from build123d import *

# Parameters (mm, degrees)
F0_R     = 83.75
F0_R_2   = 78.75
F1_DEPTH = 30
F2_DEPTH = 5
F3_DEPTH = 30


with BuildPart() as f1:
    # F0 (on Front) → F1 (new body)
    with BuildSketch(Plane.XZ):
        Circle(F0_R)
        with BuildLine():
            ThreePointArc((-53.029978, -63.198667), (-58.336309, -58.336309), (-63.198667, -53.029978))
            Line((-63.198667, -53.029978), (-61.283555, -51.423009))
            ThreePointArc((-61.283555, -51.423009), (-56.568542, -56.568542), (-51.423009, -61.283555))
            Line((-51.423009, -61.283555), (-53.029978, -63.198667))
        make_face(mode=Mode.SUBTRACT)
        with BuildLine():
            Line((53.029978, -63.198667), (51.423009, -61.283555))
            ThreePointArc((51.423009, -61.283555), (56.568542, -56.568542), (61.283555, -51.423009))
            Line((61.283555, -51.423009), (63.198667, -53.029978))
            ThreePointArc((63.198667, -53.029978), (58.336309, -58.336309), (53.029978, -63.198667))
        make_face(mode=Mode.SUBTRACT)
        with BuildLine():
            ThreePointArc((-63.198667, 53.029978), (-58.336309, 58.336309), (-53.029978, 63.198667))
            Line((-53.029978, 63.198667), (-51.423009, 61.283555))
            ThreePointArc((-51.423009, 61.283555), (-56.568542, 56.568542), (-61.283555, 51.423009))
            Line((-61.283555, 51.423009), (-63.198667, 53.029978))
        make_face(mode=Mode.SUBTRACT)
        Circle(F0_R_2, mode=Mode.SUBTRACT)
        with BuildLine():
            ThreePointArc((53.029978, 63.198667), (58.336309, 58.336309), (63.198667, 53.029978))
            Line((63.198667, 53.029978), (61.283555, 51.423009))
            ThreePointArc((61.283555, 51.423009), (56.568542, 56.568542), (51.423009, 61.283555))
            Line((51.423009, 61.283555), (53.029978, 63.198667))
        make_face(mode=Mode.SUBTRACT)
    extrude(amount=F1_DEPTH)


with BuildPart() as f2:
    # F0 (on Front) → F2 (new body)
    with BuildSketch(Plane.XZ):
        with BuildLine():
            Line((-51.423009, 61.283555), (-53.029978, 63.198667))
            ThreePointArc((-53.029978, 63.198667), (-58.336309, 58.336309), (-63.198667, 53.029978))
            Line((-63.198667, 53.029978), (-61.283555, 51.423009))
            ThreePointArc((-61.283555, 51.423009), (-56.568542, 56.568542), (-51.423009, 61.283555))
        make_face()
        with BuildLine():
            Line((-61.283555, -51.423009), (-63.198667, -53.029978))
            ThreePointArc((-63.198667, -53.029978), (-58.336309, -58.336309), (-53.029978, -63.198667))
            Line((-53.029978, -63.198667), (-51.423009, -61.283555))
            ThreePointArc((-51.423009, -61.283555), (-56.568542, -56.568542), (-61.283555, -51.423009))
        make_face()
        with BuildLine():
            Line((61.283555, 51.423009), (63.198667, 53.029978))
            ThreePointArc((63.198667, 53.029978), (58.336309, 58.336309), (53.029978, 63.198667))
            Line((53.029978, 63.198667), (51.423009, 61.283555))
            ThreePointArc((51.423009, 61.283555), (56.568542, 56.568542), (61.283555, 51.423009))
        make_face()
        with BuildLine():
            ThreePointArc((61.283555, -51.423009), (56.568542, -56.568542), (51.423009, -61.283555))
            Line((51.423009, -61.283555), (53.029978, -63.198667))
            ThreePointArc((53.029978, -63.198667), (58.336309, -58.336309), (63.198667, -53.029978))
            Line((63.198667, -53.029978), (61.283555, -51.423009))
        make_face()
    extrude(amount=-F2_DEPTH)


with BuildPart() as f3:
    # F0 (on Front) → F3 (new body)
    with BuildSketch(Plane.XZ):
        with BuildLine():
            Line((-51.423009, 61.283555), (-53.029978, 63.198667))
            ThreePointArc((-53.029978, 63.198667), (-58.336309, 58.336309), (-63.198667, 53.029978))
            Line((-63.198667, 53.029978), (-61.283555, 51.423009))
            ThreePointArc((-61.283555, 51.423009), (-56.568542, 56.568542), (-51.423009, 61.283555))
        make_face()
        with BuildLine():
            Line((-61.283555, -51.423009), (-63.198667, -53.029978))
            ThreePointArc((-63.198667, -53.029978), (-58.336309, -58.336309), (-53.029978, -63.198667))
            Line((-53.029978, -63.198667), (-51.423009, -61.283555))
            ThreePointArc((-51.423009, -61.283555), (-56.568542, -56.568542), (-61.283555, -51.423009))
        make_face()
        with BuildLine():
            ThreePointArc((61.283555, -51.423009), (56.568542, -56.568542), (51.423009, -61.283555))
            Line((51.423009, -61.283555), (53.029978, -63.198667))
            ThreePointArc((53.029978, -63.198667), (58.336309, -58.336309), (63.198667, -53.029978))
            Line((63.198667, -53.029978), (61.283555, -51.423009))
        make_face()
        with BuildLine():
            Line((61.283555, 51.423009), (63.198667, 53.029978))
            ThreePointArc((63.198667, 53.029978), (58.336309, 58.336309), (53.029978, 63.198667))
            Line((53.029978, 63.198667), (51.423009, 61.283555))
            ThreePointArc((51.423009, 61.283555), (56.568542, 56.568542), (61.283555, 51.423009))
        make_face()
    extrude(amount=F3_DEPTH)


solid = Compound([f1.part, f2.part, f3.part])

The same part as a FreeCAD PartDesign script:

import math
import FreeCAD as App
import Part
import Sketcher

V = App.Vector
Q = App.Units.Quantity

doc = App.newDocument("Part")
params = doc.addObject("Spreadsheet::Sheet", "Params")
for row, (alias, value) in enumerate([
    ("sketch1_diameter", "167.5 mm"),
    ("sketch1_diameter2", "157.5 mm"),
    ("sketch1_length", "2.500001 mm"),
    ("pad1_length", "30 mm"),
    ("sketch2_length", "2.500001 mm"),
    ("pad2_length", "5 mm"),
    ("sketch3_length", "2.500001 mm"),
    ("pad3_length", "30 mm"),
], start=1):
    params.set(f"A{row}", alias)
    params.set(f"B{row}", "=" + value)
    params.setAlias(f"B{row}", alias)

body = doc.addObject("PartDesign::Body", "Body")

# Sketch on XZ plane
sketch1 = body.newObject("Sketcher::SketchObject", "Sketch")
sketch1.AttachmentSupport = (doc.getObject("XZ_Plane"), [""])
sketch1.MapMode = "FlatFace"
sketch1.addGeometry(Part.Circle(V(0, 0, 0), V(0, 0, 1), 83.75), False)
sketch1.addGeometry(Part.LineSegment(V(-51.423009, -61.283555, 0), V(-53.029978, -63.198667, 0)), False)
sketch1.addGeometry(Part.ArcOfCircle(Part.Circle(V(0.000205, 0.000205, 0), V(0, 0, 1), 82.500289), math.radians(-139.999983), math.radians(-130.000017)), False)
sketch1.addGeometry(Part.LineSegment(V(-63.198667, -53.029978, 0), V(-61.283555, -51.423009, 0)), False)
sketch1.addGeometry(Part.ArcOfCircle(Part.Circle(V(0.000093, 0.000093, 0), V(0, 0, 1), 80.000131), math.radians(-139.999991), math.radians(-130.000009)), False)
sketch1.addGeometry(Part.ArcOfCircle(Part.Circle(V(-0.000205, 0.000205, 0), V(0, 0, 1), 82.500289), math.radians(-49.999983), math.radians(-40.000017)), False)
sketch1.addGeometry(Part.LineSegment(V(53.029978, -63.198667, 0), V(51.423009, -61.283555, 0)), False)
sketch1.addGeometry(Part.ArcOfCircle(Part.Circle(V(-0.000093, 0.000093, 0), V(0, 0, 1), 80.000131), math.radians(-49.999991), math.radians(-40.000009)), False)
sketch1.addGeometry(Part.LineSegment(V(61.283555, -51.423009, 0), V(63.198667, -53.029978, 0)), False)
sketch1.addGeometry(Part.LineSegment(V(-61.283555, 51.423009, 0), V(-63.198667, 53.029978, 0)), False)
sketch1.addGeometry(Part.ArcOfCircle(Part.Circle(V(0.000205, -0.000205, 0), V(0, 0, 1), 82.500289), math.radians(130.000017), math.radians(139.999983)), False)
sketch1.addGeometry(Part.LineSegment(V(-53.029978, 63.198667, 0), V(-51.423009, 61.283555, 0)), False)
sketch1.addGeometry(Part.ArcOfCircle(Part.Circle(V(0.000093, -0.000093, 0), V(0, 0, 1), 80.000131), math.radians(130.000009), math.radians(139.999991)), False)
sketch1.addGeometry(Part.Circle(V(0, 0, 0), V(0, 0, 1), 78.75), False)
sketch1.addGeometry(Part.LineSegment(V(51.423009, 61.283555, 0), V(53.029978, 63.198667, 0)), False)
sketch1.addGeometry(Part.ArcOfCircle(Part.Circle(V(-0.000205, -0.000205, 0), V(0, 0, 1), 82.500289), math.radians(40.000017), math.radians(49.999983)), False)
sketch1.addGeometry(Part.LineSegment(V(63.198667, 53.029978, 0), V(61.283555, 51.423009, 0)), False)
sketch1.addGeometry(Part.ArcOfCircle(Part.Circle(V(-0.000093, -0.000093, 0), V(0, 0, 1), 80.000131), math.radians(40.000009), math.radians(49.999991)), False)
sketch1.addConstraint(Sketcher.Constraint("Coincident", 1, 2, 2, 2))
sketch1.addConstraint(Sketcher.Constraint("Coincident", 2, 1, 3, 1))
sketch1.addConstraint(Sketcher.Constraint("Coincident", 3, 2, 4, 1))
sketch1.addConstraint(Sketcher.Constraint("Coincident", 4, 2, 1, 1))
sketch1.addConstraint(Sketcher.Constraint("Coincident", 5, 1, 6, 1))
sketch1.addConstraint(Sketcher.Constraint("Coincident", 6, 2, 7, 1))
sketch1.addConstraint(Sketcher.Constraint("Coincident", 7, 2, 8, 1))
sketch1.addConstraint(Sketcher.Constraint("Coincident", 8, 2, 5, 2))
sketch1.addConstraint(Sketcher.Constraint("Coincident", 9, 2, 10, 2))
sketch1.addConstraint(Sketcher.Constraint("Coincident", 10, 1, 11, 1))
sketch1.addConstraint(Sketcher.Constraint("Coincident", 11, 2, 12, 1))
sketch1.addConstraint(Sketcher.Constraint("Coincident", 12, 2, 9, 1))
sketch1.addConstraint(Sketcher.Constraint("Coincident", 14, 2, 15, 2))
sketch1.addConstraint(Sketcher.Constraint("Coincident", 15, 1, 16, 1))
sketch1.addConstraint(Sketcher.Constraint("Coincident", 16, 2, 17, 1))
sketch1.addConstraint(Sketcher.Constraint("Coincident", 17, 2, 14, 1))
sketch1.addConstraint(Sketcher.Constraint("Coincident", 0, 3, -1, 1))
sketch1.addConstraint(Sketcher.Constraint("Coincident", 13, 3, -1, 1))
sketch1.addConstraint(Sketcher.Constraint("Equal", 2, 5))
sketch1.addConstraint(Sketcher.Constraint("Equal", 4, 7))
sketch1.addConstraint(Sketcher.Constraint("Equal", 5, 10))
sketch1.addConstraint(Sketcher.Constraint("Equal", 7, 12))
sketch1.addConstraint(Sketcher.Constraint("Equal", 10, 15))
sketch1.addConstraint(Sketcher.Constraint("Equal", 12, 17))
sketch1.addConstraint(Sketcher.Constraint("Symmetric", 5, 3, 10, 3, -1, 1))
sketch1.addConstraint(Sketcher.Constraint("Symmetric", 7, 3, 12, 3, -1, 1))
sketch1.addConstraint(Sketcher.Constraint("Symmetric", 2, 3, 15, 3, -1, 1))
sketch1.addConstraint(Sketcher.Constraint("Symmetric", 4, 3, 17, 3, -1, 1))
sketch1.addConstraint(Sketcher.Constraint("Symmetric", 2, 3, 5, 3, -2))
sketch1.addConstraint(Sketcher.Constraint("Symmetric", 4, 3, 7, 3, -2))
sketch1.addConstraint(Sketcher.Constraint("Perpendicular", 3, 6))
sketch1.addConstraint(Sketcher.Constraint("Perpendicular", 1, 8))
sketch1.addConstraint(Sketcher.Constraint("Parallel", 8, 9))
sketch1.addConstraint(Sketcher.Constraint("Parallel", 6, 11))
sketch1.addConstraint(Sketcher.Constraint("Perpendicular", 9, 14))
sketch1.addConstraint(Sketcher.Constraint("Perpendicular", 11, 16))
sketch1.addConstraint(Sketcher.Constraint("Horizontal", 1, 2, 5, 1))
sketch1.addConstraint(Sketcher.Constraint("Horizontal", 4, 2, 6, 2))
sketch1.addConstraint(Sketcher.Constraint("Horizontal", 3, 2, 7, 2))
sketch1.addConstraint(Sketcher.Constraint("Horizontal", 10, 1, 14, 2))
sketch1.addConstraint(Sketcher.Constraint("Horizontal", 9, 2, 15, 1))
sketch1.addConstraint(Sketcher.Constraint("Vertical", 2, 1, 9, 2))
sketch1.addConstraint(Sketcher.Constraint("Vertical", 1, 2, 10, 1))
sketch1.addConstraint(Sketcher.Constraint("Equal", 1, 3))
sketch1.addConstraint(Sketcher.Constraint("Diameter", 0, 167.5))
sketch1.addConstraint(Sketcher.Constraint("Diameter", 13, 157.5))
sketch1.addConstraint(Sketcher.Constraint("Angle", 1, Q("-129.999986 deg")))
sketch1.addConstraint(Sketcher.Constraint("Distance", 1, 2.500001))
sketch1.addConstraint(Sketcher.Constraint("Radius", 2, 82.500289))
sketch1.addConstraint(Sketcher.Constraint("Radius", 4, 80.000131))
sketch1.addConstraint(Sketcher.Constraint("DistanceX", 17, 3, 6, 2, 51.423102))
sketch1.addConstraint(Sketcher.Constraint("DistanceY", 2, 1, -1, 1, 53.029978))
sketch1.addConstraint(Sketcher.Constraint("DistanceX", 4, 2, -1, 1, 51.423009))
sketch1.addConstraint(Sketcher.Constraint("DistanceY", 10, 3, 2, 3, 0.000409))
sketch1.setExpression("Constraints[44]", "Params.sketch1_diameter")
sketch1.setExpression("Constraints[45]", "Params.sketch1_diameter2")
sketch1.setExpression("Constraints[47]", "Params.sketch1_length")
pad1 = body.newObject("PartDesign::Pad", "Pad")
pad1.Profile = sketch1
pad1.setExpression("Length", "Params.pad1_length")
body2 = doc.addObject("PartDesign::Body", "Body001")
body2.AllowCompound = True

# Sketch on XZ plane
sketch2 = body2.newObject("Sketcher::SketchObject", "Sketch001")
sketch2.AttachmentSupport = (doc.getObject("XZ_Plane001"), [""])
sketch2.MapMode = "FlatFace"
sketch2.addGeometry(Part.LineSegment(V(-51.423009, 61.283555, 0), V(-53.029978, 63.198667, 0)), False)
sketch2.addGeometry(Part.ArcOfCircle(Part.Circle(V(0.000205, -0.000205, 0), V(0, 0, 1), 82.500289), math.radians(130.000017), math.radians(139.999983)), False)
sketch2.addGeometry(Part.LineSegment(V(-63.198667, 53.029978, 0), V(-61.283555, 51.423009, 0)), False)
sketch2.addGeometry(Part.ArcOfCircle(Part.Circle(V(0.000093, -0.000093, 0), V(0, 0, 1), 80.000131), math.radians(130.000009), math.radians(139.999991)), False)
sketch2.addGeometry(Part.LineSegment(V(-61.283555, -51.423009, 0), V(-63.198667, -53.029978, 0)), False)
sketch2.addGeometry(Part.ArcOfCircle(Part.Circle(V(0.000205, 0.000205, 0), V(0, 0, 1), 82.500289), math.radians(-139.999983), math.radians(-130.000017)), False)
sketch2.addGeometry(Part.LineSegment(V(-53.029978, -63.198667, 0), V(-51.423009, -61.283555, 0)), False)
sketch2.addGeometry(Part.ArcOfCircle(Part.Circle(V(0.000093, 0.000093, 0), V(0, 0, 1), 80.000131), math.radians(-139.999991), math.radians(-130.000009)), False)
sketch2.addGeometry(Part.LineSegment(V(61.283555, 51.423009, 0), V(63.198667, 53.029978, 0)), False)
sketch2.addGeometry(Part.ArcOfCircle(Part.Circle(V(-0.000205, -0.000205, 0), V(0, 0, 1), 82.500289), math.radians(40.000017), math.radians(49.999983)), False)
sketch2.addGeometry(Part.LineSegment(V(53.029978, 63.198667, 0), V(51.423009, 61.283555, 0)), False)
sketch2.addGeometry(Part.ArcOfCircle(Part.Circle(V(-0.000093, -0.000093, 0), V(0, 0, 1), 80.000131), math.radians(40.000009), math.radians(49.999991)), False)
sketch2.addGeometry(Part.ArcOfCircle(Part.Circle(V(-0.000093, 0.000093, 0), V(0, 0, 1), 80.000131), math.radians(-49.999991), math.radians(-40.000009)), False)
sketch2.addGeometry(Part.LineSegment(V(51.423009, -61.283555, 0), V(53.029978, -63.198667, 0)), False)
sketch2.addGeometry(Part.ArcOfCircle(Part.Circle(V(-0.000205, 0.000205, 0), V(0, 0, 1), 82.500289), math.radians(-49.999983), math.radians(-40.000017)), False)
sketch2.addGeometry(Part.LineSegment(V(63.198667, -53.029978, 0), V(61.283555, -51.423009, 0)), False)
sketch2.addConstraint(Sketcher.Constraint("Coincident", 0, 2, 1, 1))
sketch2.addConstraint(Sketcher.Constraint("Coincident", 1, 2, 2, 1))
sketch2.addConstraint(Sketcher.Constraint("Coincident", 2, 2, 3, 2))
sketch2.addConstraint(Sketcher.Constraint("Coincident", 3, 1, 0, 1))
sketch2.addConstraint(Sketcher.Constraint("Coincident", 4, 2, 5, 1))
sketch2.addConstraint(Sketcher.Constraint("Coincident", 5, 2, 6, 1))
sketch2.addConstraint(Sketcher.Constraint("Coincident", 6, 2, 7, 2))
sketch2.addConstraint(Sketcher.Constraint("Coincident", 7, 1, 4, 1))
sketch2.addConstraint(Sketcher.Constraint("Coincident", 8, 2, 9, 1))
sketch2.addConstraint(Sketcher.Constraint("Coincident", 9, 2, 10, 1))
sketch2.addConstraint(Sketcher.Constraint("Coincident", 10, 2, 11, 2))
sketch2.addConstraint(Sketcher.Constraint("Coincident", 11, 1, 8, 1))
sketch2.addConstraint(Sketcher.Constraint("Coincident", 12, 1, 13, 1))
sketch2.addConstraint(Sketcher.Constraint("Coincident", 13, 2, 14, 1))
sketch2.addConstraint(Sketcher.Constraint("Coincident", 14, 2, 15, 1))
sketch2.addConstraint(Sketcher.Constraint("Coincident", 15, 2, 12, 2))
sketch2.addConstraint(Sketcher.Constraint("Equal", 1, 5))
sketch2.addConstraint(Sketcher.Constraint("Equal", 3, 7))
sketch2.addConstraint(Sketcher.Constraint("Equal", 5, 9))
sketch2.addConstraint(Sketcher.Constraint("Equal", 7, 11))
sketch2.addConstraint(Sketcher.Constraint("Equal", 11, 12))
sketch2.addConstraint(Sketcher.Constraint("Equal", 9, 14))
sketch2.addConstraint(Sketcher.Constraint("Symmetric", 5, 3, 9, 3, -1, 1))
sketch2.addConstraint(Sketcher.Constraint("Symmetric", 7, 3, 11, 3, -1, 1))
sketch2.addConstraint(Sketcher.Constraint("Symmetric", 3, 3, 12, 3, -1, 1))
sketch2.addConstraint(Sketcher.Constraint("Symmetric", 1, 3, 14, 3, -1, 1))
sketch2.addConstraint(Sketcher.Constraint("Symmetric", 1, 3, 9, 3, -2))
sketch2.addConstraint(Sketcher.Constraint("Symmetric", 3, 3, 11, 3, -2))
sketch2.addConstraint(Sketcher.Constraint("Perpendicular", 0, 4))
sketch2.addConstraint(Sketcher.Constraint("Perpendicular", 2, 6))
sketch2.addConstraint(Sketcher.Constraint("Parallel", 4, 8))
sketch2.addConstraint(Sketcher.Constraint("Parallel", 6, 10))
sketch2.addConstraint(Sketcher.Constraint("Perpendicular", 8, 13))
sketch2.addConstraint(Sketcher.Constraint("Perpendicular", 10, 15))
sketch2.addConstraint(Sketcher.Constraint("Horizontal", 1, 2, 8, 2))
sketch2.addConstraint(Sketcher.Constraint("Horizontal", 0, 2, 9, 2))
sketch2.addConstraint(Sketcher.Constraint("Horizontal", 3, 1, 10, 2))
sketch2.addConstraint(Sketcher.Constraint("Horizontal", 6, 2, 12, 1))
sketch2.addConstraint(Sketcher.Constraint("Horizontal", 4, 2, 14, 2))
sketch2.addConstraint(Sketcher.Constraint("Vertical", 1, 2, 4, 2))
sketch2.addConstraint(Sketcher.Constraint("Vertical", 0, 2, 5, 2))
sketch2.addConstraint(Sketcher.Constraint("Equal", 0, 2))
sketch2.addConstraint(Sketcher.Constraint("Angle", 0, Q("129.999986 deg")))
sketch2.addConstraint(Sketcher.Constraint("Distance", 0, 2.500001))
sketch2.addConstraint(Sketcher.Constraint("Radius", 1, 82.500289))
sketch2.addConstraint(Sketcher.Constraint("Radius", 3, 80.000131))
sketch2.addConstraint(Sketcher.Constraint("DistanceX", 11, 3, 12, 1, 51.423102))
sketch2.addConstraint(Sketcher.Constraint("DistanceY", -1, 1, 1, 2, 53.029978))
sketch2.addConstraint(Sketcher.Constraint("DistanceX", 3, 1, -1, 1, 51.423009))
sketch2.addConstraint(Sketcher.Constraint("DistanceY", 1, 3, 5, 3, 0.000409))
sketch2.setExpression("Constraints[43]", "Params.sketch2_length")
pad2 = body2.newObject("PartDesign::Pad", "Pad001")
pad2.Profile = sketch2
pad2.setExpression("Length", "Params.pad2_length")
pad2.Reversed = True
body3 = doc.addObject("PartDesign::Body", "Body002")
body3.AllowCompound = True

# Sketch on XZ plane
sketch3 = body3.newObject("Sketcher::SketchObject", "Sketch002")
sketch3.AttachmentSupport = (doc.getObject("XZ_Plane002"), [""])
sketch3.MapMode = "FlatFace"
sketch3.addGeometry(Part.LineSegment(V(-51.423009, 61.283555, 0), V(-53.029978, 63.198667, 0)), False)
sketch3.addGeometry(Part.ArcOfCircle(Part.Circle(V(0.000205, -0.000205, 0), V(0, 0, 1), 82.500289), math.radians(130.000017), math.radians(139.999983)), False)
sketch3.addGeometry(Part.LineSegment(V(-63.198667, 53.029978, 0), V(-61.283555, 51.423009, 0)), False)
sketch3.addGeometry(Part.ArcOfCircle(Part.Circle(V(0.000093, -0.000093, 0), V(0, 0, 1), 80.000131), math.radians(130.000009), math.radians(139.999991)), False)
sketch3.addGeometry(Part.LineSegment(V(-61.283555, -51.423009, 0), V(-63.198667, -53.029978, 0)), False)
sketch3.addGeometry(Part.ArcOfCircle(Part.Circle(V(0.000205, 0.000205, 0), V(0, 0, 1), 82.500289), math.radians(-139.999983), math.radians(-130.000017)), False)
sketch3.addGeometry(Part.LineSegment(V(-53.029978, -63.198667, 0), V(-51.423009, -61.283555, 0)), False)
sketch3.addGeometry(Part.ArcOfCircle(Part.Circle(V(0.000093, 0.000093, 0), V(0, 0, 1), 80.000131), math.radians(-139.999991), math.radians(-130.000009)), False)
sketch3.addGeometry(Part.ArcOfCircle(Part.Circle(V(-0.000093, 0.000093, 0), V(0, 0, 1), 80.000131), math.radians(-49.999991), math.radians(-40.000009)), False)
sketch3.addGeometry(Part.LineSegment(V(51.423009, -61.283555, 0), V(53.029978, -63.198667, 0)), False)
sketch3.addGeometry(Part.ArcOfCircle(Part.Circle(V(-0.000205, 0.000205, 0), V(0, 0, 1), 82.500289), math.radians(-49.999983), math.radians(-40.000017)), False)
sketch3.addGeometry(Part.LineSegment(V(63.198667, -53.029978, 0), V(61.283555, -51.423009, 0)), False)
sketch3.addGeometry(Part.LineSegment(V(61.283555, 51.423009, 0), V(63.198667, 53.029978, 0)), False)
sketch3.addGeometry(Part.ArcOfCircle(Part.Circle(V(-0.000205, -0.000205, 0), V(0, 0, 1), 82.500289), math.radians(40.000017), math.radians(49.999983)), False)
sketch3.addGeometry(Part.LineSegment(V(53.029978, 63.198667, 0), V(51.423009, 61.283555, 0)), False)
sketch3.addGeometry(Part.ArcOfCircle(Part.Circle(V(-0.000093, -0.000093, 0), V(0, 0, 1), 80.000131), math.radians(40.000009), math.radians(49.999991)), False)
sketch3.addConstraint(Sketcher.Constraint("Coincident", 0, 2, 1, 1))
sketch3.addConstraint(Sketcher.Constraint("Coincident", 1, 2, 2, 1))
sketch3.addConstraint(Sketcher.Constraint("Coincident", 2, 2, 3, 2))
sketch3.addConstraint(Sketcher.Constraint("Coincident", 3, 1, 0, 1))
sketch3.addConstraint(Sketcher.Constraint("Coincident", 4, 2, 5, 1))
sketch3.addConstraint(Sketcher.Constraint("Coincident", 5, 2, 6, 1))
sketch3.addConstraint(Sketcher.Constraint("Coincident", 6, 2, 7, 2))
sketch3.addConstraint(Sketcher.Constraint("Coincident", 7, 1, 4, 1))
sketch3.addConstraint(Sketcher.Constraint("Coincident", 8, 1, 9, 1))
sketch3.addConstraint(Sketcher.Constraint("Coincident", 9, 2, 10, 1))
sketch3.addConstraint(Sketcher.Constraint("Coincident", 10, 2, 11, 1))
sketch3.addConstraint(Sketcher.Constraint("Coincident", 11, 2, 8, 2))
sketch3.addConstraint(Sketcher.Constraint("Coincident", 12, 2, 13, 1))
sketch3.addConstraint(Sketcher.Constraint("Coincident", 13, 2, 14, 1))
sketch3.addConstraint(Sketcher.Constraint("Coincident", 14, 2, 15, 2))
sketch3.addConstraint(Sketcher.Constraint("Coincident", 15, 1, 12, 1))
sketch3.addConstraint(Sketcher.Constraint("Equal", 1, 5))
sketch3.addConstraint(Sketcher.Constraint("Equal", 3, 7))
sketch3.addConstraint(Sketcher.Constraint("Equal", 7, 8))
sketch3.addConstraint(Sketcher.Constraint("Equal", 5, 10))
sketch3.addConstraint(Sketcher.Constraint("Equal", 10, 13))
sketch3.addConstraint(Sketcher.Constraint("Equal", 8, 15))
sketch3.addConstraint(Sketcher.Constraint("Symmetric", 3, 3, 8, 3, -1, 1))
sketch3.addConstraint(Sketcher.Constraint("Symmetric", 1, 3, 10, 3, -1, 1))
sketch3.addConstraint(Sketcher.Constraint("Symmetric", 5, 3, 13, 3, -1, 1))
sketch3.addConstraint(Sketcher.Constraint("Symmetric", 7, 3, 15, 3, -1, 1))
sketch3.addConstraint(Sketcher.Constraint("Symmetric", 7, 3, 8, 3, -2))
sketch3.addConstraint(Sketcher.Constraint("Symmetric", 5, 3, 10, 3, -2))
sketch3.addConstraint(Sketcher.Constraint("Perpendicular", 0, 4))
sketch3.addConstraint(Sketcher.Constraint("Perpendicular", 2, 6))
sketch3.addConstraint(Sketcher.Constraint("Perpendicular", 4, 9))
sketch3.addConstraint(Sketcher.Constraint("Perpendicular", 6, 11))
sketch3.addConstraint(Sketcher.Constraint("Perpendicular", 9, 12))
sketch3.addConstraint(Sketcher.Constraint("Perpendicular", 11, 14))
sketch3.addConstraint(Sketcher.Constraint("Horizontal", 6, 2, 8, 1))
sketch3.addConstraint(Sketcher.Constraint("Horizontal", 5, 2, 9, 2))
sketch3.addConstraint(Sketcher.Constraint("Horizontal", 4, 2, 10, 2))
sketch3.addConstraint(Sketcher.Constraint("Horizontal", 1, 2, 12, 2))
sketch3.addConstraint(Sketcher.Constraint("Horizontal", 0, 2, 13, 2))
sketch3.addConstraint(Sketcher.Constraint("Vertical", 1, 2, 4, 2))
sketch3.addConstraint(Sketcher.Constraint("Vertical", 0, 2, 5, 2))
sketch3.addConstraint(Sketcher.Constraint("Equal", 0, 2))
sketch3.addConstraint(Sketcher.Constraint("Angle", 0, Q("129.999986 deg")))
sketch3.addConstraint(Sketcher.Constraint("Distance", 0, 2.500001))
sketch3.addConstraint(Sketcher.Constraint("Radius", 1, 82.500289))
sketch3.addConstraint(Sketcher.Constraint("Radius", 3, 80.000131))
sketch3.addConstraint(Sketcher.Constraint("DistanceX", 15, 3, 8, 1, 51.423102))
sketch3.addConstraint(Sketcher.Constraint("DistanceY", -1, 1, 1, 2, 53.029978))
sketch3.addConstraint(Sketcher.Constraint("DistanceX", 3, 1, -1, 1, 51.423009))
sketch3.addConstraint(Sketcher.Constraint("DistanceY", 1, 3, 5, 3, 0.000409))
sketch3.setExpression("Constraints[43]", "Params.sketch3_length")
pad3 = body3.newObject("PartDesign::Pad", "Pad002")
pad3.Profile = sketch3
pad3.setExpression("Length", "Params.pad3_length")

doc.recompute()
